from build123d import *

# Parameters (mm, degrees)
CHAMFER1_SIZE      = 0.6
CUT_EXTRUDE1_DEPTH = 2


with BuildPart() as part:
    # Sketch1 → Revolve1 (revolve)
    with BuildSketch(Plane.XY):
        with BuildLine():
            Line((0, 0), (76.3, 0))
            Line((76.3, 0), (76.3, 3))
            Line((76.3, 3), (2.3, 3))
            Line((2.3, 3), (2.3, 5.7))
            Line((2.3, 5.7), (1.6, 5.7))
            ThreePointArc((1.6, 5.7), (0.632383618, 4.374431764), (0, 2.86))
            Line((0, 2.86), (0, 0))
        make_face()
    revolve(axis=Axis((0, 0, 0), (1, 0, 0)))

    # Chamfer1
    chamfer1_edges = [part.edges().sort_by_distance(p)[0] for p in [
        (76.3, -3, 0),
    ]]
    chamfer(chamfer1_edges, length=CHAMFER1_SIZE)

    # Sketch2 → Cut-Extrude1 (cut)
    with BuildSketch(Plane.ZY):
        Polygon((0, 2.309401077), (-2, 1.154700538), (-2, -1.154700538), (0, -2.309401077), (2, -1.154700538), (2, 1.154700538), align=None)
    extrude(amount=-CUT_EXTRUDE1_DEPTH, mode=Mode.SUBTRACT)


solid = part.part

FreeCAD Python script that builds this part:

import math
import FreeCAD as App
import Part
import Sketcher
Q = App.Units.Quantity


def edges_at(feature, points):
    """Names of the edges that pass closest to the given points."""
    edges = feature.Shape.Edges
    near = lambda p: min(range(len(edges)), key=lambda i: edges[i].distToShape(Part.Vertex(*p))[0])
    return sorted({f"Edge{near(p) + 1}" for p in points})

doc = App.newDocument("Part")
body = doc.addObject("PartDesign::Body", "Body")

sketch1 = body.newObject("Sketcher::SketchObject", "Sketch")
sketch1.AttachmentSupport = (doc.getObject("XY_Plane"), [""])
sketch1.MapMode = "FlatFace"
sketch1.addGeometry([
    Part.LineSegment(App.Vector(0, 0, 0), App.Vector(76.3, 0, 0)),
    Part.LineSegment(App.Vector(76.3, 0, 0), App.Vector(76.3, 3, 0)),
    Part.LineSegment(App.Vector(76.3, 3, 0), App.Vector(2.3, 3, 0)),
    Part.LineSegment(App.Vector(2.3, 3, 0), App.Vector(2.3, 5.7, 0)),
    Part.LineSegment(App.Vector(2.3, 5.7, 0), App.Vector(1.6, 5.7, 0)),
    Part.ArcOfCircle(Part.Circle(App.Vector(6.7, 0.9, 0), App.Vector(0, 0, 1), 7), math.radians(137), math.radians(164)),
    Part.LineSegment(App.Vector(0, 2.9, 0), App.Vector(0, 0, 0)),
], False)
sketch1.addConstraint([
    Sketcher.Constraint("Coincident", 0, 2, 1, 1),
    Sketcher.Constraint("Coincident", 1, 2, 2, 1),
    Sketcher.Constraint("Coincident", 2, 2, 3, 1),
    Sketcher.Constraint("Coincident", 3, 2, 4, 1),
    Sketcher.Constraint("Coincident", 4, 2, 5, 1),
    Sketcher.Constraint("Coincident", 5, 2, 6, 1),
    Sketcher.Constraint("Coincident", 6, 2, 0, 1),
    Sketcher.Constraint("Horizontal", 0),
    Sketcher.Constraint("Vertical", 1),
    Sketcher.Constraint("Horizontal", 2),
    Sketcher.Constraint("Vertical", 3),
    Sketcher.Constraint("Horizontal", 4),
    Sketcher.Constraint("Vertical", 6),
    Sketcher.Constraint("Coincident", 6, 2, -1, 1),
    Sketcher.Constraint("Radius", 5, 7.0),
    Sketcher.Constraint("DistanceX", 2, 2, 2, 1, 74.0),
    Sketcher.Constraint("DistanceY", 1, 1, 1, 2, 3.0),
    Sketcher.Constraint("DistanceX", 0, 1, 0, 2, 76.3),
    Sketcher.Constraint("DistanceX", 4, 2, 4, 1, 0.7),
    Sketcher.Constraint("DistanceY", 3, 1, 3, 2, 2.7),
    Sketcher.Constraint("DistanceY", 6, 2, 6, 1, 2.86),
])
revolution = body.newObject("PartDesign::Revolution", "Revolution")
revolution.Profile = sketch1
revolution.ReferenceAxis = (sketch1, ["H_Axis"])
revolution.Angle = 360
doc.recompute()

chamfer = body.newObject("PartDesign::Chamfer", "Chamfer")
chamfer.Base = (revolution, edges_at(revolution, [(76.3, -3, 0)]))
chamfer.Size = 0.6

sketch2 = body.newObject("Sketcher::SketchObject", "Sketch001")
sketch2.AttachmentSupport = (doc.getObject("YZ_Plane"), [""])
sketch2.MapMode = "FlatFace"
sketch2.addGeometry([
    Part.LineSegment(App.Vector(2.3, 0, 0), App.Vector(1.2, -2, 0)),
    Part.LineSegment(App.Vector(1.2, -2, 0), App.Vector(-1.2, -2, 0)),
    Part.LineSegment(App.Vector(-1.2, -2, 0), App.Vector(-2.3, 0, 0)),
    Part.LineSegment(App.Vector(-2.3, 0, 0), App.Vector(-1.2, 2, 0)),
    Part.LineSegment(App.Vector(-1.2, 2, 0), App.Vector(1.2, 2, 0)),
    Part.LineSegment(App.Vector(1.2, 2, 0), App.Vector(2.3, 0, 0)),
], False)
sketch2.addConstraint([
    Sketcher.Constraint("Coincident", 0, 2, 1, 1),
    Sketcher.Constraint("Coincident", 1, 2, 2, 1),
    Sketcher.Constraint("Coincident", 2, 2, 3, 1),
    Sketcher.Constraint("Coincident", 3, 2, 4, 1),
    Sketcher.Constraint("Coincident", 4, 2, 5, 1),
    Sketcher.Constraint("Coincident", 5, 2, 0, 1),
    Sketcher.Constraint("Horizontal", 1),
    Sketcher.Constraint("Horizontal", 4),
    Sketcher.Constraint("Symmetric", 0, 2, 3, 2, -1, 1),
    Sketcher.Constraint("Symmetric", 2, 2, 5, 2, -1, 1),
    Sketcher.Constraint("PointOnObject", 2, 2, -1),
    Sketcher.Constraint("Parallel", 2, 5),
    Sketcher.Constraint("Vertical", 1, 2, 3, 2),
    Sketcher.Constraint("Angle", 0, Q("-120 deg")),
    Sketcher.Constraint("DistanceY", 0, 2, -1, 1, 2.0),
    Sketcher.Constraint("DistanceX", 1, 2, 1, 1, 2.309401),
])
pocket1 = body.newObject("PartDesign::Pocket", "Pocket")
pocket1.Profile = sketch2
pocket1.Length = 2
pocket1.Reversed = True

doc.recompute()
